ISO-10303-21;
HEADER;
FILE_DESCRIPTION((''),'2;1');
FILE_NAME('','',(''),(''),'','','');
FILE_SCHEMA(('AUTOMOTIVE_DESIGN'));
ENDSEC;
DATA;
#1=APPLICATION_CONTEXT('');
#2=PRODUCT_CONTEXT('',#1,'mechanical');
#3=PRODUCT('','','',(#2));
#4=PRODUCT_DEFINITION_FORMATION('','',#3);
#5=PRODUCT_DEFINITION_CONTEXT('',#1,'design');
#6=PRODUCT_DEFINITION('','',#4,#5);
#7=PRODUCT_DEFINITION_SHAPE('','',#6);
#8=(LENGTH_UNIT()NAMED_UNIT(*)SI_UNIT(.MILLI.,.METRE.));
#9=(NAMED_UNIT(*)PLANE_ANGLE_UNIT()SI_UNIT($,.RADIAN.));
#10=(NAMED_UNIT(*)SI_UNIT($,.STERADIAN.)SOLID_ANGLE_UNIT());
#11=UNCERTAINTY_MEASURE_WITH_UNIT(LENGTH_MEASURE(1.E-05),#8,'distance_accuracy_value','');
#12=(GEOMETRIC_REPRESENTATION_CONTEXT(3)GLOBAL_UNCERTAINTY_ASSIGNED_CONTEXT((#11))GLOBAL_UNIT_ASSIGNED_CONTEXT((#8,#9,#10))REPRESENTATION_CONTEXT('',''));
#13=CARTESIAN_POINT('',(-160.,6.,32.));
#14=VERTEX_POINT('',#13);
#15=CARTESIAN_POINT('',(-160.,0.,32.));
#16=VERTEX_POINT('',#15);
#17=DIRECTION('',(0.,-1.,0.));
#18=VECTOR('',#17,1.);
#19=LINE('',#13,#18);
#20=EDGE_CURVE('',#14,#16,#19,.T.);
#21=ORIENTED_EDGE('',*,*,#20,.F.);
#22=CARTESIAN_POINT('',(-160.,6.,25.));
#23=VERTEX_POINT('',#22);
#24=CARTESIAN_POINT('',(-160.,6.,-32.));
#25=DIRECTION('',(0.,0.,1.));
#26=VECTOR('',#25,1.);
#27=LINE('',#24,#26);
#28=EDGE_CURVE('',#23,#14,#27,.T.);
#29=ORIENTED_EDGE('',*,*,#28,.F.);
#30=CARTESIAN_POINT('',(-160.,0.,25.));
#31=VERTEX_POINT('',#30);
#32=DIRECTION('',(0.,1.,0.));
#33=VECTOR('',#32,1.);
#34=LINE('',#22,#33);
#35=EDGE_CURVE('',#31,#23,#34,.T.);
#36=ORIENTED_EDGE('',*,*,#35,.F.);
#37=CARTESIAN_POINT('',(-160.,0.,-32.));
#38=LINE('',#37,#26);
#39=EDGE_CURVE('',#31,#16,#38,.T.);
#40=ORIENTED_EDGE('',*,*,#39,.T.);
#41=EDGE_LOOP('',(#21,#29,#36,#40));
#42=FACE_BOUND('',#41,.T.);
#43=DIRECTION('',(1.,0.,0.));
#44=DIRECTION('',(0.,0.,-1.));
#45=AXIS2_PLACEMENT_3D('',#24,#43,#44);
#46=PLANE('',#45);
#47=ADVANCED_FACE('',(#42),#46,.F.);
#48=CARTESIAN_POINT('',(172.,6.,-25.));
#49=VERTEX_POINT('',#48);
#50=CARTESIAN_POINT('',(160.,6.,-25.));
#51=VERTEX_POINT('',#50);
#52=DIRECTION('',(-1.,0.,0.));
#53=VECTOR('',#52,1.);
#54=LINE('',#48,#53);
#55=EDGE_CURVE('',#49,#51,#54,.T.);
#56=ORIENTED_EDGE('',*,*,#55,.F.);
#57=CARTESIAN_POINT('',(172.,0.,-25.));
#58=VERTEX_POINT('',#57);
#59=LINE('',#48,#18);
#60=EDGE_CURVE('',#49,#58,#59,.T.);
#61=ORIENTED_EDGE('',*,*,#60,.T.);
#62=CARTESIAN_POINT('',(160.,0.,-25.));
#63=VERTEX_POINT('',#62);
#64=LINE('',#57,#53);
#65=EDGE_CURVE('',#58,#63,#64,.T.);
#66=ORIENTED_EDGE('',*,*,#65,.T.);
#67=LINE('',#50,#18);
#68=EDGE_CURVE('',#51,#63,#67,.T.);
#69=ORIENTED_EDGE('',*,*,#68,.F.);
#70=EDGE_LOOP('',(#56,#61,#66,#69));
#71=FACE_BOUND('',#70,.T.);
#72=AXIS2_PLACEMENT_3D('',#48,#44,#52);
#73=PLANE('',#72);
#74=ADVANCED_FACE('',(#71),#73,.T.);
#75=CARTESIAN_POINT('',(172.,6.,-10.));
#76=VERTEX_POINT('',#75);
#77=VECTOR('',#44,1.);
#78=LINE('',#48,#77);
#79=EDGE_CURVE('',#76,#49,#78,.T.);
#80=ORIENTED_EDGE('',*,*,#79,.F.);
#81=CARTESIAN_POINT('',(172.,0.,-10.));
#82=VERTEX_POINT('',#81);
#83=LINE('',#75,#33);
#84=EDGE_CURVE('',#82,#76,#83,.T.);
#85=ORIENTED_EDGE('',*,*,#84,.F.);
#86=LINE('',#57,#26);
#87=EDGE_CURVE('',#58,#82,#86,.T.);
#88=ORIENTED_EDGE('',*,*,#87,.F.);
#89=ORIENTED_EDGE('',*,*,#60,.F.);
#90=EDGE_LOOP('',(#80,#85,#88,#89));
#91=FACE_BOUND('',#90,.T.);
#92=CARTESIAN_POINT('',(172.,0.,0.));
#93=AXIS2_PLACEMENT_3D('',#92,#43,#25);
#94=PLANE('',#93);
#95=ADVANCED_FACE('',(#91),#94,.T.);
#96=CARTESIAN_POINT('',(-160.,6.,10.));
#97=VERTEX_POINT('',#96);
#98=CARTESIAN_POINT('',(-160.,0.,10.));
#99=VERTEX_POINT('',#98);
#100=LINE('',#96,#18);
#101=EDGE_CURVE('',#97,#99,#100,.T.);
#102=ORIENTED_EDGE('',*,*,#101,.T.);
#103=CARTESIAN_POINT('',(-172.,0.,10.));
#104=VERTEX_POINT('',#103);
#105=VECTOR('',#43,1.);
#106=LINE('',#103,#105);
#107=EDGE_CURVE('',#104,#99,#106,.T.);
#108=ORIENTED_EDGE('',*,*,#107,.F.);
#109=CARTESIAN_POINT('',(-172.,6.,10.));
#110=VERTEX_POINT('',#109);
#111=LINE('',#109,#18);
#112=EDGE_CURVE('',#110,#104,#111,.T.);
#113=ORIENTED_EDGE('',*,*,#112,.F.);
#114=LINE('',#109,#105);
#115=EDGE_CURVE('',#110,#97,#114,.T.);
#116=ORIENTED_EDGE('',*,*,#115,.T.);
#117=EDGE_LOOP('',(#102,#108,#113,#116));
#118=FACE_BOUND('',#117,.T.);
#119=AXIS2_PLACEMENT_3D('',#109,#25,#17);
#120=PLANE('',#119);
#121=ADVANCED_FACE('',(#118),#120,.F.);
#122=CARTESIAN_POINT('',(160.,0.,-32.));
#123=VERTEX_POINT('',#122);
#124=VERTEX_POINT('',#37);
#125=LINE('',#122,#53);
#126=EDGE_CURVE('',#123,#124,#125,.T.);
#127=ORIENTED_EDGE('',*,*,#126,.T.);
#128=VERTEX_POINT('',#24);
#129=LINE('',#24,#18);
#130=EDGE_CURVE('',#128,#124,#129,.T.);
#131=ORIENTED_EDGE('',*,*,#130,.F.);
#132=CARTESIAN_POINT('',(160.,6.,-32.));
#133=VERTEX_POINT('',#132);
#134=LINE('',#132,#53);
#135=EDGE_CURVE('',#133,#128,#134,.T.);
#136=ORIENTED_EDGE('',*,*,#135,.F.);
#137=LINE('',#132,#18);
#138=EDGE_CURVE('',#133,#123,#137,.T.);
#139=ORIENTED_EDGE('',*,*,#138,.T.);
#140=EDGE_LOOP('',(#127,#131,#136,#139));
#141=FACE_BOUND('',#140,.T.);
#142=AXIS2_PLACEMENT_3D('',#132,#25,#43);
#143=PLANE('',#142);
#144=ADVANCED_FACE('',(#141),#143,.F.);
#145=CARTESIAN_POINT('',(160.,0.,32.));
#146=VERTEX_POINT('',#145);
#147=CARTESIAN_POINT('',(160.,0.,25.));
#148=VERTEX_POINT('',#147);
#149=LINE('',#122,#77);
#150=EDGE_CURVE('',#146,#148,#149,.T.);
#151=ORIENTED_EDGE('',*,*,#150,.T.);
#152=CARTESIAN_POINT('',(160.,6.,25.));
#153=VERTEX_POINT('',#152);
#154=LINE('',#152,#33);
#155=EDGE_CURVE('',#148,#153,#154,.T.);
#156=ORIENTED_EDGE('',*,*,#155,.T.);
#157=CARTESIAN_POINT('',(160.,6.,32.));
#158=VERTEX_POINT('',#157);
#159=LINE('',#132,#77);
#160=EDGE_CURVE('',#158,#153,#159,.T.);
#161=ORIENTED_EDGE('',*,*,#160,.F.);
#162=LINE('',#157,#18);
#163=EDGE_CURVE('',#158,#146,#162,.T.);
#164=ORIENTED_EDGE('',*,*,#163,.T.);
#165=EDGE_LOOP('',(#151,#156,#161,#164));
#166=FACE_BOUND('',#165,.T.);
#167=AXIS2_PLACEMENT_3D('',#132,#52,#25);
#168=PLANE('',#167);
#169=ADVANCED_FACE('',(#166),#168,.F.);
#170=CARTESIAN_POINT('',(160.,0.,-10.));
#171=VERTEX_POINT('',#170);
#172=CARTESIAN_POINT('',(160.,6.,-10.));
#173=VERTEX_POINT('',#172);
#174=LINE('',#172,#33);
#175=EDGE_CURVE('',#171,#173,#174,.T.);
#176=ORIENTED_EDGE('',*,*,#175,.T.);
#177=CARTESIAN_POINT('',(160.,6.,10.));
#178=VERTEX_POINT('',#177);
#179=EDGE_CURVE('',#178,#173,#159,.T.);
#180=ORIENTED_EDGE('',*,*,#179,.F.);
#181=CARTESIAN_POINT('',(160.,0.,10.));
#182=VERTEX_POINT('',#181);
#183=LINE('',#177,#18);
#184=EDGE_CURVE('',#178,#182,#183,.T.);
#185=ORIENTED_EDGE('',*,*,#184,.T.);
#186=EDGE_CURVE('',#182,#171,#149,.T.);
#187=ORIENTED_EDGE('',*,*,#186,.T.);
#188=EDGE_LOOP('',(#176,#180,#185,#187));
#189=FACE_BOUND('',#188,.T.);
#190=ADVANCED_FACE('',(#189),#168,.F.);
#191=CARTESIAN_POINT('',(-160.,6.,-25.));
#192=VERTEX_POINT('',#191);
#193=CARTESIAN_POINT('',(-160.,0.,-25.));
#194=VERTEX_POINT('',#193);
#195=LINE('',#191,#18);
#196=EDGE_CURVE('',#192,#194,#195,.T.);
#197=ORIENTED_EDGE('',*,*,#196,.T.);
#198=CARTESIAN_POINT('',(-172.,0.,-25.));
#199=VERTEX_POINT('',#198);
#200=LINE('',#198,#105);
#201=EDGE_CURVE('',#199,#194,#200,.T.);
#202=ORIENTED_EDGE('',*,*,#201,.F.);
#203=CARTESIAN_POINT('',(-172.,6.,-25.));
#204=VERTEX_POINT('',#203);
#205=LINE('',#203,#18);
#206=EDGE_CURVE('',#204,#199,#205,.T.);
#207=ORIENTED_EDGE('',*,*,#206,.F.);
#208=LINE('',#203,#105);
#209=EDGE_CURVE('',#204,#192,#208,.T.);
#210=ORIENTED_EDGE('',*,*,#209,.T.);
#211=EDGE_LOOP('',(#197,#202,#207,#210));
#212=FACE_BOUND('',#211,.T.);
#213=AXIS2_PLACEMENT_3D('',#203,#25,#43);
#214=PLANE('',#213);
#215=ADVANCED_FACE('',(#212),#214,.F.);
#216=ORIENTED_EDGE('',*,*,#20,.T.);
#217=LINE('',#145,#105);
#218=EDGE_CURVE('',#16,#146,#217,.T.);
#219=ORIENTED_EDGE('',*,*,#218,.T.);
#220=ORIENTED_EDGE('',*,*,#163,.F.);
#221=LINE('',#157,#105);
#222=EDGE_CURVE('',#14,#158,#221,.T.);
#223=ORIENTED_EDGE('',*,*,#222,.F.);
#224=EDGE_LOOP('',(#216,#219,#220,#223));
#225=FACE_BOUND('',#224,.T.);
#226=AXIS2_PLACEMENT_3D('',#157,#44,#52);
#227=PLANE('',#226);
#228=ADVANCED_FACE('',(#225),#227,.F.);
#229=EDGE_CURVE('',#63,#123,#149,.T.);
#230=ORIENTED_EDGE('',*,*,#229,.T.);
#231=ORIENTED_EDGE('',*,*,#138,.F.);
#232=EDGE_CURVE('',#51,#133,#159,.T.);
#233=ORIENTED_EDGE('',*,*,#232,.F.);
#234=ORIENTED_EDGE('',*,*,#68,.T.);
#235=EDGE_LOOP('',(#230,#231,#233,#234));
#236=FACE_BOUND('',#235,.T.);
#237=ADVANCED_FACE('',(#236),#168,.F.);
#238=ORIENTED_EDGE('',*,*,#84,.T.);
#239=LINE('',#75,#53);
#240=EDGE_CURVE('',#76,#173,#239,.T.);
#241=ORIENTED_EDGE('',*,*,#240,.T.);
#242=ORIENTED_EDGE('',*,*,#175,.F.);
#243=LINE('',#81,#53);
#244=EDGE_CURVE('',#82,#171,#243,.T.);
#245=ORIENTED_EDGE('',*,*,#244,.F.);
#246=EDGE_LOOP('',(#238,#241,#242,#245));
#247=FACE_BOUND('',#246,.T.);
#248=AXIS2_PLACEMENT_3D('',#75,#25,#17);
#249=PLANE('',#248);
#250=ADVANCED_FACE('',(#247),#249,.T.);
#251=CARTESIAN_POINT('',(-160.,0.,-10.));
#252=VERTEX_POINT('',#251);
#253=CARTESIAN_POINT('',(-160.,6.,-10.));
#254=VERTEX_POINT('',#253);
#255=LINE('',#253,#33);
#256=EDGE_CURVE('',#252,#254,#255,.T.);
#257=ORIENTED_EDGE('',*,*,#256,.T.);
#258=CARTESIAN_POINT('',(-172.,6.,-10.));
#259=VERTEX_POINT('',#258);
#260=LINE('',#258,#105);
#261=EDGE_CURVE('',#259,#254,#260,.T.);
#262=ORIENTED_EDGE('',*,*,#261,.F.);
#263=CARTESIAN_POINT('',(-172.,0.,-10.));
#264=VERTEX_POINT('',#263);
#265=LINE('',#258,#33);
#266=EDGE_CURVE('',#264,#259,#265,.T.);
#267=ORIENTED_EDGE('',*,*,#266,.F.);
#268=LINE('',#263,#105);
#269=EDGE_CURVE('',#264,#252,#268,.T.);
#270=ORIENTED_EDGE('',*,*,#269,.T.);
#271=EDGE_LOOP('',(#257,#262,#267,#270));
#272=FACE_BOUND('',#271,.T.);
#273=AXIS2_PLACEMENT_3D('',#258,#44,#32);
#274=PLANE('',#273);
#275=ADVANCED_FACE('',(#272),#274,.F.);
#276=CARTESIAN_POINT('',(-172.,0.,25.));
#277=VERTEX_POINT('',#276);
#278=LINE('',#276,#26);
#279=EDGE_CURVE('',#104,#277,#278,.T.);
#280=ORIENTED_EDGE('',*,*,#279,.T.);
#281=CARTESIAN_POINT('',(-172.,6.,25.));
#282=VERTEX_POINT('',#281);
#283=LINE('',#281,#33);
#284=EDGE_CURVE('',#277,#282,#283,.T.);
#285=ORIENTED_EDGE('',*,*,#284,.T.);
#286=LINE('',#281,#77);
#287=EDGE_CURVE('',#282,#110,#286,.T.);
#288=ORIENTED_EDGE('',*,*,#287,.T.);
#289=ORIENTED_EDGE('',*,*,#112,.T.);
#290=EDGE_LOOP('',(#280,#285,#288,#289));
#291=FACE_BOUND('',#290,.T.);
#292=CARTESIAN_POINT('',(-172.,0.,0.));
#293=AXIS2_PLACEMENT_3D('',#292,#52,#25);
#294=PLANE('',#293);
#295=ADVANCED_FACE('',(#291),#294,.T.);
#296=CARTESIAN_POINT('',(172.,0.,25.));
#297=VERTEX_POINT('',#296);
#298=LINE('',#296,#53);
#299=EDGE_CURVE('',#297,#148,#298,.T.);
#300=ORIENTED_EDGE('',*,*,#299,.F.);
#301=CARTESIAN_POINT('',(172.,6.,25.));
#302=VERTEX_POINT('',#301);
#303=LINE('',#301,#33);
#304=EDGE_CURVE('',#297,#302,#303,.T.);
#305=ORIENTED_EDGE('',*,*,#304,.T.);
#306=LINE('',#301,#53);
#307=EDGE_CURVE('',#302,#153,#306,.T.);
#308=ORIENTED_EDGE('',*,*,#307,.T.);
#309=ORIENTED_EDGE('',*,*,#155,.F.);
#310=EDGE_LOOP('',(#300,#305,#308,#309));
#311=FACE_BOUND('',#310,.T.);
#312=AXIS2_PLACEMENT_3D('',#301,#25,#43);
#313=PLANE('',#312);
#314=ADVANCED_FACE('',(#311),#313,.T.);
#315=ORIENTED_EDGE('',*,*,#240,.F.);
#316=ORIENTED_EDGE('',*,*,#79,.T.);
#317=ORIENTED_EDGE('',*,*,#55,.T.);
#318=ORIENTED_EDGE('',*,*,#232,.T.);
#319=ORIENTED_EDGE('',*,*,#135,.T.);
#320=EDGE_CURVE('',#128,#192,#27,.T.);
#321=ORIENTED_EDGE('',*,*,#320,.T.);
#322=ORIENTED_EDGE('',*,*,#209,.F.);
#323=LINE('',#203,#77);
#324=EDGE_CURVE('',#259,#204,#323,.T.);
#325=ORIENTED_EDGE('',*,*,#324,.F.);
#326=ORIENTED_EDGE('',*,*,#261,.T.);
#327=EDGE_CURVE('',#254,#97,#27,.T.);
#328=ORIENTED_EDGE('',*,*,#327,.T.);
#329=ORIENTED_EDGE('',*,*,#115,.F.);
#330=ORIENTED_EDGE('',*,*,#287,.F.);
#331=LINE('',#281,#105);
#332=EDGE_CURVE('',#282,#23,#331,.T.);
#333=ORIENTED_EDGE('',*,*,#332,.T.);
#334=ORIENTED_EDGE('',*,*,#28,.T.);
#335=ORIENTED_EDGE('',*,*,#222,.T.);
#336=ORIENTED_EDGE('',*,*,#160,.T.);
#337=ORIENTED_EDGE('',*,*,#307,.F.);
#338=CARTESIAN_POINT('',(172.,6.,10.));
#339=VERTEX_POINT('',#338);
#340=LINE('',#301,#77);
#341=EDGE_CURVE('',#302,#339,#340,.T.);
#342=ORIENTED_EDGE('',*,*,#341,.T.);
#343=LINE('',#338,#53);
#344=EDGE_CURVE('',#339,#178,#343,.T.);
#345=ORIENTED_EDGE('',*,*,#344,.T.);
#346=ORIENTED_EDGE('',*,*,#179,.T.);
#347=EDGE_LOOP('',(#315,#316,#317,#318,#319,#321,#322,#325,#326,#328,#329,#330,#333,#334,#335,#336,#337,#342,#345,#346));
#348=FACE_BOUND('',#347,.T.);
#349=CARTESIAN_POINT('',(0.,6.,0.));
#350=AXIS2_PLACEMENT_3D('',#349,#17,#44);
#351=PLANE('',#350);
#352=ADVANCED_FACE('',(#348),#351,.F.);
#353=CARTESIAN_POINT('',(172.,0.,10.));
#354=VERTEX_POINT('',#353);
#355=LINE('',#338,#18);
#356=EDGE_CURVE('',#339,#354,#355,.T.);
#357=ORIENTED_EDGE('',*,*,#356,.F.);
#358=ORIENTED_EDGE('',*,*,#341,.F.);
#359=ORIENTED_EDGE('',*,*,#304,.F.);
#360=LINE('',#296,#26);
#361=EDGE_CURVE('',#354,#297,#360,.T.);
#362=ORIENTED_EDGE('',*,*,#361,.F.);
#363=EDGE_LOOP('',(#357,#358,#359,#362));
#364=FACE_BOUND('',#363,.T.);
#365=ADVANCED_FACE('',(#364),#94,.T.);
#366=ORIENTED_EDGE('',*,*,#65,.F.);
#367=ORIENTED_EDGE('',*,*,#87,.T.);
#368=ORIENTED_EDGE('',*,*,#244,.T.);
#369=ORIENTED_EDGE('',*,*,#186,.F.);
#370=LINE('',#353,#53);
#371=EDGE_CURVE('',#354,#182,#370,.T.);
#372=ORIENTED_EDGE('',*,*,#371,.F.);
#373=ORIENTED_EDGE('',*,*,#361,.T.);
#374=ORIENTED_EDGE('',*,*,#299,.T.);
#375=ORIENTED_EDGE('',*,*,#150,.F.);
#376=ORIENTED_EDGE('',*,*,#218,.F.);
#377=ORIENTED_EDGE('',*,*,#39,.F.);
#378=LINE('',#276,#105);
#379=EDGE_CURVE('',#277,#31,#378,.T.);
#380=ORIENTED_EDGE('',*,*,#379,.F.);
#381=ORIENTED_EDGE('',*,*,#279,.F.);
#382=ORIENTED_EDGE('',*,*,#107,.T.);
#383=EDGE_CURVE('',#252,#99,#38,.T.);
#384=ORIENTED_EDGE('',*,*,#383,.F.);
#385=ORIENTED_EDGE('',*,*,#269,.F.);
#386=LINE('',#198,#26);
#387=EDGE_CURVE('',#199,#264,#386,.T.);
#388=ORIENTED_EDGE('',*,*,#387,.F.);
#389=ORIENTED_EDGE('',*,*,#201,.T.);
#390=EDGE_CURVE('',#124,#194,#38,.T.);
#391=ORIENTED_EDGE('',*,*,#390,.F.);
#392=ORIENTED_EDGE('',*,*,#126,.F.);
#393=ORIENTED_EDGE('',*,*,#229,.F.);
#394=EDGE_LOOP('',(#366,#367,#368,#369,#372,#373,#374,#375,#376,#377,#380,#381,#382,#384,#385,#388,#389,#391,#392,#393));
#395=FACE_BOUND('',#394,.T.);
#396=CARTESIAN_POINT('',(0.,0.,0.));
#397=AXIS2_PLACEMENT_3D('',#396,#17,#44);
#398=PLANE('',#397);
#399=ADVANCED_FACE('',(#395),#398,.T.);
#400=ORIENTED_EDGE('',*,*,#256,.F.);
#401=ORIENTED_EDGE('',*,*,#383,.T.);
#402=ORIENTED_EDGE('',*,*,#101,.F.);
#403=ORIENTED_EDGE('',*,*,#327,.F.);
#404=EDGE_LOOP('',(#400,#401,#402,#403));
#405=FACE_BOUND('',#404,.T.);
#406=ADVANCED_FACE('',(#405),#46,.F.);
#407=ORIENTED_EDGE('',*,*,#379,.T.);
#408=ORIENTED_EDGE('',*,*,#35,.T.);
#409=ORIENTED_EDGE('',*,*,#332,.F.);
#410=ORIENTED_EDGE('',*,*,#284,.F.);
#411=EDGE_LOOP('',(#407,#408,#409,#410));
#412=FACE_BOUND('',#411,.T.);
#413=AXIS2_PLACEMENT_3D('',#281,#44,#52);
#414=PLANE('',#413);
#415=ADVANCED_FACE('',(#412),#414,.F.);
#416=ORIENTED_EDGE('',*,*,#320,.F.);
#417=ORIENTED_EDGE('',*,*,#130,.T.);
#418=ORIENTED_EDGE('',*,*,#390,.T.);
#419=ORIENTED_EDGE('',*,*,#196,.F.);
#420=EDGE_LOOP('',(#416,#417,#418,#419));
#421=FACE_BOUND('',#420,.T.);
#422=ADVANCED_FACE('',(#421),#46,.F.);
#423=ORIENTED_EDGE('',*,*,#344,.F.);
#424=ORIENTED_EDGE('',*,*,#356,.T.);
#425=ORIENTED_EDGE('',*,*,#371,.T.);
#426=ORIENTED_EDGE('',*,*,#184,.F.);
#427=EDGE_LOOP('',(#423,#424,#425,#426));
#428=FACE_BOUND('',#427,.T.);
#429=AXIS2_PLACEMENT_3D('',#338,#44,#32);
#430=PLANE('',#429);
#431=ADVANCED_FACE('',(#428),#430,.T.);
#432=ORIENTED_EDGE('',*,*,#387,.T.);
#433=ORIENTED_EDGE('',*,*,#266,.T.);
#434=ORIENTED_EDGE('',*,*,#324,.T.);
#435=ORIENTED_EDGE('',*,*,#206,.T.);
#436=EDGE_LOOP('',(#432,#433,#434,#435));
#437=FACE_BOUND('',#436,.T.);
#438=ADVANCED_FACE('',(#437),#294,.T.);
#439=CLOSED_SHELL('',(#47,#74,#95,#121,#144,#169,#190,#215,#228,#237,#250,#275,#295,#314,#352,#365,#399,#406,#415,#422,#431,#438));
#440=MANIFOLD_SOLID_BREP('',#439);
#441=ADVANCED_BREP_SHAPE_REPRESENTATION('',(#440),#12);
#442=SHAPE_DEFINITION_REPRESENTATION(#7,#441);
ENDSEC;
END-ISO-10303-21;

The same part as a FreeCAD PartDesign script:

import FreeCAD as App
import Part
import Sketcher

V = App.Vector
Q = App.Units.Quantity


def add_polygon(sketch, points):
    """Adds a closed chain of lines whose ends are joined by coincident constraints."""
    first, n = sketch.GeometryCount, len(points)
    for a, b in zip(points, points[1:] + points[:1]):
        sketch.addGeometry(Part.LineSegment(App.Vector(*a, 0), App.Vector(*b, 0)), False)
    for i in range(n):
        sketch.addConstraint(Sketcher.Constraint("Coincident", first + i, 2, first + (i + 1) % n, 1))

doc = App.newDocument("Part")
params = doc.addObject("Spreadsheet::Sheet", "Params")
for row, (alias, value) in enumerate([
    ("sketch1_width", "320 mm"),
    ("sketch1_height", "64 mm"),
    ("pad1_length", "6 mm"),
    ("sketch2_width", "6 mm"),
    ("sketch2_height", "15 mm"),
    ("pad2_length", "12 mm"),
], start=1):
    params.set(f"A{row}", alias)
    params.set(f"B{row}", "=" + value)
    params.setAlias(f"B{row}", alias)

body = doc.addObject("PartDesign::Body", "Body")

sketch1 = body.newObject("Sketcher::SketchObject", "Sketch")
sketch1.AttachmentSupport = (doc.getObject("XZ_Plane"), [""])
sketch1.MapMode = "FlatFace"
add_polygon(sketch1, [(-160, -32), (-160, 32), (160, 32), (160, -32)])
sketch1.addConstraint([
    Sketcher.Constraint("Vertical", 0),
    Sketcher.Constraint("Horizontal", 1),
    Sketcher.Constraint("Vertical", 2),
    Sketcher.Constraint("Horizontal", 3),
    Sketcher.Constraint("Symmetric", 0, 2, 2, 2, -1, 1),
    Sketcher.Constraint("DistanceX", 1, 1, 1, 2, Q("320 mm")),
    Sketcher.Constraint("DistanceY", 0, 1, 0, 2, Q("64 mm")),
])
sketch1.setExpression("Constraints[9]", "Params.sketch1_width")
sketch1.setExpression("Constraints[10]", "Params.sketch1_height")
pad1 = body.newObject("PartDesign::Pad", "Pad")
pad1.Profile = sketch1
pad1.setExpression("Length", "Params.pad1_length")
pad1.Reversed = True

sketch2 = body.newObject("Sketcher::SketchObject", "Sketch001")
sketch2.AttachmentSupport = (doc.getObject("YZ_Plane"), [""])
sketch2.MapMode = "FlatFace"
sketch2.AttachmentOffset = App.Placement(V(0, 0, -160), App.Rotation())
add_polygon(sketch2, [(6, -25), (0, -25), (0, -10), (6, -10)])
add_polygon(sketch2, [(6, 10), (0, 10), (0, 25), (6, 25)])
sketch2.addConstraint([
    Sketcher.Constraint("Horizontal", 0),
    Sketcher.Constraint("Vertical", 1),
    Sketcher.Constraint("Horizontal", 2),
    Sketcher.Constraint("Vertical", 3),
    Sketcher.Constraint("Horizontal", 4),
    Sketcher.Constraint("Vertical", 5),
    Sketcher.Constraint("Horizontal", 6),
    Sketcher.Constraint("Vertical", 7),
    Sketcher.Constraint("Symmetric", 1, 2, 4, 2, -1, 1),
    Sketcher.Constraint("Symmetric", 0, 2, 5, 2, -1),
    Sketcher.Constraint("Vertical", 3, 2, 6, 2),
    Sketcher.Constraint("DistanceX", 0, 2, 0, 1, Q("6 mm")),
    Sketcher.Constraint("DistanceY", 1, 1, 1, 2, Q("15 mm")),
    Sketcher.Constraint("DistanceY", 0, 2, -1, 1, Q("25 mm")),
])
sketch2.setExpression("Constraints[19]", "Params.sketch2_width")
sketch2.setExpression("Constraints[20]", "Params.sketch2_height")
pad2 = body.newObject("PartDesign::Pad", "Pad001")
pad2.Profile = sketch2
pad2.setExpression("Length", "Params.pad2_length")
pad2.Reversed = True
doc.recompute()

mirrored = body.newObject("PartDesign::Mirrored", "Mirrored")
mirrored.Originals = [pad2]
mirrored.MirrorPlane = (doc.getObject("YZ_Plane"), [""])
body.Tip = mirrored

doc.recompute()
